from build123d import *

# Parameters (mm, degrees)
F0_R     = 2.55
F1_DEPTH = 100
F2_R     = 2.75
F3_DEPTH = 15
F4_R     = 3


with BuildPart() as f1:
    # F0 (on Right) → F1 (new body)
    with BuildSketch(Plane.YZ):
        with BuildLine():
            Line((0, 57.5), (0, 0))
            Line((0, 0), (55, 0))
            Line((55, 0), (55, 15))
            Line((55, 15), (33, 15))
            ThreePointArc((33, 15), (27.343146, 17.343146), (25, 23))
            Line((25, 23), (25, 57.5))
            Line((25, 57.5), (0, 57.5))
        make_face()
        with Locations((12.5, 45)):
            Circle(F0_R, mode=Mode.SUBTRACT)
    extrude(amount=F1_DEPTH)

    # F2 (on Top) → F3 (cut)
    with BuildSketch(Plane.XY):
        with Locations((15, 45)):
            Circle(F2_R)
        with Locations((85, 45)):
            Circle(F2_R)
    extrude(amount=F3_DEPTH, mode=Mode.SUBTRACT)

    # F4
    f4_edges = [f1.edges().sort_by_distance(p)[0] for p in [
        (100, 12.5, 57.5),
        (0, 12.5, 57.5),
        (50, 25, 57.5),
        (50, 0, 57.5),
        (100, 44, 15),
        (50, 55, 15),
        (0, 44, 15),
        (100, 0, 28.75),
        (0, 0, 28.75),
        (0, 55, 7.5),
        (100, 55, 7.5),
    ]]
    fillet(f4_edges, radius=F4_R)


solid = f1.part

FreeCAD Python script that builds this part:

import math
import FreeCAD as App
import Part
import Sketcher
from FreeCAD import Vector


def edges_at(feature, points):
    """Names of the edges that pass closest to the given points."""
    edges = feature.Shape.Edges
    near = lambda p: min(range(len(edges)), key=lambda i: edges[i].distToShape(Part.Vertex(*p))[0])
    return sorted({f"Edge{near(p) + 1}" for p in points})

doc = App.newDocument("Part")
body = doc.addObject("PartDesign::Body", "Body")

# Sketch on YZ plane
sketch1 = doc.addObject("Sketcher::SketchObject", "Sketch")
body.addObject(sketch1)
sketch1.AttachmentSupport = (doc.YZ_Plane, [""])
sketch1.MapMode = "FlatFace"
sketch1.addGeometry(Part.LineSegment(Vector(0, 57.5, 0), Vector(0, 0, 0)), False)
sketch1.addGeometry(Part.LineSegment(Vector(0, 0, 0), Vector(55, 0, 0)), False)
sketch1.addGeometry(Part.LineSegment(Vector(55, 0, 0), Vector(55, 15, 0)), False)
sketch1.addGeometry(Part.LineSegment(Vector(55, 15, 0), Vector(33, 15, 0)), False)
sketch1.addGeometry(Part.ArcOfCircle(Part.Circle(Vector(33, 23, 0), Vector(0, 0, 1), 8), math.radians(-180), math.radians(-90)), False)
sketch1.addGeometry(Part.LineSegment(Vector(25, 23, 0), Vector(25, 57.5, 0)), False)
sketch1.addGeometry(Part.LineSegment(Vector(25, 57.5, 0), Vector(0, 57.5, 0)), False)
sketch1.addGeometry(Part.Circle(Vector(12.5, 45, 0), Vector(0, 0, 1), 2.5), False)
sketch1.addConstraint(Sketcher.Constraint("Coincident", 0, 2, 1, 1))
sketch1.addConstraint(Sketcher.Constraint("Coincident", 1, 2, 2, 1))
sketch1.addConstraint(Sketcher.Constraint("Coincident", 2, 2, 3, 1))
sketch1.addConstraint(Sketcher.Constraint("Tangent", 3, 2, 4, 2))
sketch1.addConstraint(Sketcher.Constraint("Tangent", 4, 1, 5, 1))
sketch1.addConstraint(Sketcher.Constraint("Coincident", 5, 2, 6, 1))
sketch1.addConstraint(Sketcher.Constraint("Coincident", 6, 2, 0, 1))
sketch1.addConstraint(Sketcher.Constraint("Vertical", 0))
sketch1.addConstraint(Sketcher.Constraint("Horizontal", 1))
sketch1.addConstraint(Sketcher.Constraint("Vertical", 2))
sketch1.addConstraint(Sketcher.Constraint("Horizontal", 3))
sketch1.addConstraint(Sketcher.Constraint("Vertical", 5))
sketch1.addConstraint(Sketcher.Constraint("Horizontal", 6))
sketch1.addConstraint(Sketcher.Constraint("Coincident", 0, 2, -1, 1))
sketch1.addConstraint(Sketcher.Constraint("Radius", 4, 8.000001))
sketch1.addConstraint(Sketcher.Constraint("Diameter", 7, 5.1))
sketch1.addConstraint(Sketcher.Constraint("DistanceX", 1, 1, 1, 2, 55.0))
sketch1.addConstraint(Sketcher.Constraint("DistanceX", 3, 2, 3, 1, 22.0))
sketch1.addConstraint(Sketcher.Constraint("DistanceY", 2, 1, 2, 2, 15.0))
sketch1.addConstraint(Sketcher.Constraint("DistanceY", 0, 2, 0, 1, 57.5))
sketch1.addConstraint(Sketcher.Constraint("DistanceY", -1, 1, 7, 3, 45.0))
sketch1.addConstraint(Sketcher.Constraint("DistanceX", -1, 1, 7, 3, 12.5))
pad1 = doc.addObject("PartDesign::Pad", "Pad")
body.addObject(pad1)
pad1.Profile = sketch1
pad1.Length = 100

# Sketch on XY plane
sketch2 = doc.addObject("Sketcher::SketchObject", "Sketch001")
body.addObject(sketch2)
sketch2.AttachmentSupport = (doc.XY_Plane, [""])
sketch2.MapMode = "FlatFace"
sketch2.addGeometry(Part.Circle(Vector(15, 45, 0), Vector(0, 0, 1), 2.8), False)
sketch2.addGeometry(Part.Circle(Vector(85, 45, 0), Vector(0, 0, 1), 2.8), False)
sketch2.addConstraint(Sketcher.Constraint("Equal", 0, 1))
sketch2.addConstraint(Sketcher.Constraint("Horizontal", 0, 3, 1, 3))
sketch2.addConstraint(Sketcher.Constraint("Diameter", 0, 5.5))
sketch2.addConstraint(Sketcher.Constraint("DistanceX", -1, 1, 0, 3, 15.0))
sketch2.addConstraint(Sketcher.Constraint("DistanceY", -1, 1, 0, 3, 45.0))
sketch2.addConstraint(Sketcher.Constraint("DistanceX", -1, 1, 1, 3, 85.0))
pocket1 = doc.addObject("PartDesign::Pocket", "Pocket")
body.addObject(pocket1)
pocket1.Profile = sketch2
pocket1.Length = 15
pocket1.Reversed = True
doc.recompute()

fillet = doc.addObject("PartDesign::Fillet", "Fillet")
body.addObject(fillet)
fillet.Base = (pocket1, edges_at(pocket1, [
    (100, 12.5, 57.5),
    (0, 12.5, 57.5),
    (50, 25, 57.5),
    (50, 0, 57.5),
    (100, 44, 15),
    (50, 55, 15),
    (0, 44, 15),
    (100, 0, 28.75),
    (0, 0, 28.75),
    (0, 55, 7.5),
    (100, 55, 7.5),
]))
fillet.Radius = 3

doc.recompute()
